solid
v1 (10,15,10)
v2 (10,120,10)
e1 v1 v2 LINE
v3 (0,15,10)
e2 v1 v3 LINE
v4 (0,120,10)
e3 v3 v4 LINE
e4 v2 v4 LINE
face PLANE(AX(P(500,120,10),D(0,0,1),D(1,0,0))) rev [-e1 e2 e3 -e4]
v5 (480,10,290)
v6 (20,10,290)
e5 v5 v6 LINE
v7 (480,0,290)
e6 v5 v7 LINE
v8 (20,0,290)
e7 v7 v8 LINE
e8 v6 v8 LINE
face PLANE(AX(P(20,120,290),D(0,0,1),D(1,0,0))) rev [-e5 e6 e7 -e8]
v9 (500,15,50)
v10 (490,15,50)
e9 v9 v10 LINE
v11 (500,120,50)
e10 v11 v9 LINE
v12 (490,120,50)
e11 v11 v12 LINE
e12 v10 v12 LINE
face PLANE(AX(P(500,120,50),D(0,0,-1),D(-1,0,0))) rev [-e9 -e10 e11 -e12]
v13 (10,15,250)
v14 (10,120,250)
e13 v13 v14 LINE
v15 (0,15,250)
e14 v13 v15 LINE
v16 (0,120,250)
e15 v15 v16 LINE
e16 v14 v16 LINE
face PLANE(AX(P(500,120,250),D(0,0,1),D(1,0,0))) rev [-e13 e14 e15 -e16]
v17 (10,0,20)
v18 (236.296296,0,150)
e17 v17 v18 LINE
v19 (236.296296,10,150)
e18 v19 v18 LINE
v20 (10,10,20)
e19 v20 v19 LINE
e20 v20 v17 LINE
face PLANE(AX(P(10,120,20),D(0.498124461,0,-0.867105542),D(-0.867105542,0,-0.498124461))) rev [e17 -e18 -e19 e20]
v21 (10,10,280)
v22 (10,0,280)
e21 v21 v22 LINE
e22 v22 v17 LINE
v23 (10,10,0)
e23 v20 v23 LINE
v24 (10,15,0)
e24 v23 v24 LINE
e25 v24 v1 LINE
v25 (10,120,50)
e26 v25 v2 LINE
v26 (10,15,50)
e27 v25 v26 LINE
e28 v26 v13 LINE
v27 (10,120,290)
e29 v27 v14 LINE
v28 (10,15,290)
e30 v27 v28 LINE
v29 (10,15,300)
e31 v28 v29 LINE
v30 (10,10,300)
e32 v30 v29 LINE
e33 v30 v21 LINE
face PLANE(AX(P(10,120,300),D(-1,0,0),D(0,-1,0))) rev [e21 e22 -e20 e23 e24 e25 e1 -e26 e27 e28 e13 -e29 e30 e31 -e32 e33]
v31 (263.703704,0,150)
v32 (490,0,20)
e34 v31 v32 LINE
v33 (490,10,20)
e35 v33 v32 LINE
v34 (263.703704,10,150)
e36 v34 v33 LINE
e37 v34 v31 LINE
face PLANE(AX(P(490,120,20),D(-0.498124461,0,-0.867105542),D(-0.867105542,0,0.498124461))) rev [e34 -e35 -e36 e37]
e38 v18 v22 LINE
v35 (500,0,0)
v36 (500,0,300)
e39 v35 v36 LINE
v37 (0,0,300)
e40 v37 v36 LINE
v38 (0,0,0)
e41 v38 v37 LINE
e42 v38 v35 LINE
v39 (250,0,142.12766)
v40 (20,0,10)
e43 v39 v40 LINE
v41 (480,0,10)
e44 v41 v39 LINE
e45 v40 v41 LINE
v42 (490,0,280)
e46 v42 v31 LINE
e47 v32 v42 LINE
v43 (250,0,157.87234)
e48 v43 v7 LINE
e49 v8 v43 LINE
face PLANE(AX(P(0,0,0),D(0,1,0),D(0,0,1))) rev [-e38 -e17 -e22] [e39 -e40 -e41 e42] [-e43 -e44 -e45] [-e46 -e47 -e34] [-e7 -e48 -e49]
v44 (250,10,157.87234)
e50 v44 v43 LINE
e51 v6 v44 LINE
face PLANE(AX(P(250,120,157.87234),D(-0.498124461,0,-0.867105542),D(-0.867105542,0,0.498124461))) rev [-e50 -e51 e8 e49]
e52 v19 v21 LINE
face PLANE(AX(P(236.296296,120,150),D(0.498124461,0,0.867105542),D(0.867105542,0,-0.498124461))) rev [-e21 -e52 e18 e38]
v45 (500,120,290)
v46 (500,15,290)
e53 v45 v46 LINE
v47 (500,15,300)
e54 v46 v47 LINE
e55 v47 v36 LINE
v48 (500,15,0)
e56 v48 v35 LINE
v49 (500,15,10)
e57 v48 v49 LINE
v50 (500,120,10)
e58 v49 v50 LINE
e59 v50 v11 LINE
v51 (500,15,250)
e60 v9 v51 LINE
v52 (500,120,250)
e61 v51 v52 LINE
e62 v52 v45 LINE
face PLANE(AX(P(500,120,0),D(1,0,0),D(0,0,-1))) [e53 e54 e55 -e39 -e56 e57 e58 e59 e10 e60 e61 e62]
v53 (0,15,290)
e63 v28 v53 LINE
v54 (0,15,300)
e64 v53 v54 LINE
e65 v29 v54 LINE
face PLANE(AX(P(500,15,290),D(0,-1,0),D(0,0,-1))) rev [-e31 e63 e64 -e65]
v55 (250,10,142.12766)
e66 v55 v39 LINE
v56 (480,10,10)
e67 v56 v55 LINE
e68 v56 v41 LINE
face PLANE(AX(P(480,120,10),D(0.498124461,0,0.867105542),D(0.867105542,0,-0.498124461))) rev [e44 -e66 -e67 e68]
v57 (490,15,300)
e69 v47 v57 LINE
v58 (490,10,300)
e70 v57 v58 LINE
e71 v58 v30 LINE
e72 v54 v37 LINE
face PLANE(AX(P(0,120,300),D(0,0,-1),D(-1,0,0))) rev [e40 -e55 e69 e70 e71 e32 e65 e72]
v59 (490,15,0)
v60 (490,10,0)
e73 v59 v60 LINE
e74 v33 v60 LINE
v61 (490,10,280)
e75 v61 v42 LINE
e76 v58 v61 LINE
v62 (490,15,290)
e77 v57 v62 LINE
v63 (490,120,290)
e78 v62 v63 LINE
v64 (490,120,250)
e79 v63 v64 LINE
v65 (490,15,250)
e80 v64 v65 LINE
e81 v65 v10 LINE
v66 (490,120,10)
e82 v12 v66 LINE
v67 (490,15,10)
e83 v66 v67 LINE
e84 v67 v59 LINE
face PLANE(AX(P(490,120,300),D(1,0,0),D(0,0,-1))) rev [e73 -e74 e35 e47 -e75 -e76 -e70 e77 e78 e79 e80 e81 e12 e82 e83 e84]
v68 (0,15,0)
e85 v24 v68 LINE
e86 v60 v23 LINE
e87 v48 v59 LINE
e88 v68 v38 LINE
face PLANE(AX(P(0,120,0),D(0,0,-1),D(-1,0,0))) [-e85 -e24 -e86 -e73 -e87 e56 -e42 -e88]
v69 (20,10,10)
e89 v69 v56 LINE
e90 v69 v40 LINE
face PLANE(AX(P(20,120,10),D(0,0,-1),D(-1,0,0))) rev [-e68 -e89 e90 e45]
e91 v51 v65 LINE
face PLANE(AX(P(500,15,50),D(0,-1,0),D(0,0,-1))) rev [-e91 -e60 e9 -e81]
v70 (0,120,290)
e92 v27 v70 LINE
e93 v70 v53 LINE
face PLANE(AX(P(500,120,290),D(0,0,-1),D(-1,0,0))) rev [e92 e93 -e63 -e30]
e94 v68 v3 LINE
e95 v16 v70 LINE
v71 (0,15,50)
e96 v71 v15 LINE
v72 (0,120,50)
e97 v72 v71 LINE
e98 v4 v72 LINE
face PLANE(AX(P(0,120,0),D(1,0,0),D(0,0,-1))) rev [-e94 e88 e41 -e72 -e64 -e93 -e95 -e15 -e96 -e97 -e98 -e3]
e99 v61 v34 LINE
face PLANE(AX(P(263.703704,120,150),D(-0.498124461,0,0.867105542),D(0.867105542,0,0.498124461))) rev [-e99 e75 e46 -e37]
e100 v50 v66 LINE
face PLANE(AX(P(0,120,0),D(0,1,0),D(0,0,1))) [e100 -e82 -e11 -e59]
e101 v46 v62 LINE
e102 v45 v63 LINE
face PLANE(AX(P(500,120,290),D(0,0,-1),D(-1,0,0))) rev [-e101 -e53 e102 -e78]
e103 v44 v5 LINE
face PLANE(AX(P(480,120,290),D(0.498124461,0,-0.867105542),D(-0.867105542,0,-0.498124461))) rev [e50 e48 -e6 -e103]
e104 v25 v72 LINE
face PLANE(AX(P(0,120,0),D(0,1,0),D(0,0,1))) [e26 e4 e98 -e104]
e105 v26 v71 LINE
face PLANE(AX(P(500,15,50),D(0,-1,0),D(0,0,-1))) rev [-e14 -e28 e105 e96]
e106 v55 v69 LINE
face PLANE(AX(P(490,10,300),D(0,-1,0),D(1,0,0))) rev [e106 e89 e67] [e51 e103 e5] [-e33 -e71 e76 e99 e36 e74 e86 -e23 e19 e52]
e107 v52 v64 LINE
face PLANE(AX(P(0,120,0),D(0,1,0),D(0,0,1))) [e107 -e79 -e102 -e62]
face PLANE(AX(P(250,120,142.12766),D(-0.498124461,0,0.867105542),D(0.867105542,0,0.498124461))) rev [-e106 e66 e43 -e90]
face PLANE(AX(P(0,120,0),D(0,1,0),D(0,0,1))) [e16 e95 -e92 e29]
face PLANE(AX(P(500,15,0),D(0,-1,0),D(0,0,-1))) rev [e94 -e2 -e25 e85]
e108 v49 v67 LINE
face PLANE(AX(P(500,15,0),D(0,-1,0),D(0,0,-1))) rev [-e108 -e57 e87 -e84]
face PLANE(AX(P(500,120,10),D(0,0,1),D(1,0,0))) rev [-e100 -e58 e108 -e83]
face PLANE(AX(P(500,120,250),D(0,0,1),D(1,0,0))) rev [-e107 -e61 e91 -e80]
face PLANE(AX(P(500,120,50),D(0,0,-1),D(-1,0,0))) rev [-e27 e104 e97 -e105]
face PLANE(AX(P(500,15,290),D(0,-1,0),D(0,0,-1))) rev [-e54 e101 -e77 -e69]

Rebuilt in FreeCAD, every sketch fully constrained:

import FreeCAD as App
import Part
import Sketcher

V = App.Vector


def add_polygon(sketch, points):
    """Adds a closed chain of lines whose ends are joined by coincident constraints."""
    first, n = sketch.GeometryCount, len(points)
    for a, b in zip(points, points[1:] + points[:1]):
        sketch.addGeometry(Part.LineSegment(App.Vector(*a, 0), App.Vector(*b, 0)), False)
    for i in range(n):
        sketch.addConstraint(Sketcher.Constraint("Coincident", first + i, 2, first + (i + 1) % n, 1))

doc = App.newDocument("Part")
body = doc.addObject("PartDesign::Body", "Body")

# Sketch on XZ plane
sketch1 = body.newObject("Sketcher::SketchObject", "Sketch")
sketch1.AttachmentSupport = (doc.getObject("XZ_Plane"), [""])
sketch1.MapMode = "FlatFace"
add_polygon(sketch1, [(0, 0), (0, 300), (500, 300), (500, 0)])  # lines 0-3
sketch1.addConstraint([
    Sketcher.Constraint("Vertical", 0),
    Sketcher.Constraint("Horizontal", 1),
    Sketcher.Constraint("Vertical", 2),
    Sketcher.Constraint("Horizontal", 3),
    Sketcher.Constraint("Coincident", 3, 2, -1, 1),
    Sketcher.Constraint("DistanceX", 1, 1, 1, 2, 500.0),
    Sketcher.Constraint("DistanceY", 0, 1, 0, 2, 300.0),
])
pad1 = body.newObject("PartDesign::Pad", "Pad")
pad1.Profile = sketch1
pad1.Length = 120
pad1.Reversed = True

# Sketch on XY plane
sketch2 = body.newObject("Sketcher::SketchObject", "Sketch001")
sketch2.AttachmentSupport = (doc.getObject("XY_Plane"), [""])
sketch2.MapMode = "FlatFace"
add_polygon(sketch2, [(490, 120), (490, 10), (10, 10), (10, 120)])  # lines 0-3
sketch2.addConstraint([
    Sketcher.Constraint("Vertical", 0),
    Sketcher.Constraint("Horizontal", 1),
    Sketcher.Constraint("Vertical", 2),
    Sketcher.Constraint("Horizontal", 3),
    Sketcher.Constraint("DistanceX", 1, 2, 1, 1, 480.0),
    Sketcher.Constraint("DistanceY", 0, 2, 0, 1, 110.0),
    Sketcher.Constraint("DistanceX", -1, 1, 0, 2, 490.0),
    Sketcher.Constraint("DistanceY", -1, 1, 0, 2, 10.0),
])
pocket1 = body.newObject("PartDesign::Pocket", "Pocket")
pocket1.Profile = sketch2
pocket1.Type = "ThroughAll"
pocket1.Reversed = True

# Sketch on XZ plane
sketch3 = body.newObject("Sketcher::SketchObject", "Sketch002")
sketch3.AttachmentSupport = (doc.getObject("XZ_Plane"), [""])
sketch3.MapMode = "FlatFace"
add_polygon(sketch3, [(10, 280), (10, 20), (236, 150)])  # lines 0-2
add_polygon(sketch3, [(480, 290), (20, 290), (250, 158)])  # lines 3-5
add_polygon(sketch3, [(490, 280), (264, 150), (490, 20)])  # lines 6-8
add_polygon(sketch3, [(250, 142), (20, 10), (480, 10)])  # lines 9-11
sketch3.addConstraint([
    Sketcher.Constraint("Vertical", 0),
    Sketcher.Constraint("Horizontal", 3),
    Sketcher.Constraint("Vertical", 8),
    Sketcher.Constraint("Horizontal", 10),
    Sketcher.Constraint("Parallel", 2, 4),
    Sketcher.Constraint("Parallel", 1, 5),
    Sketcher.Constraint("Parallel", 5, 6),
    Sketcher.Constraint("Parallel", 4, 7),
    Sketcher.Constraint("Parallel", 6, 9),
    Sketcher.Constraint("Parallel", 7, 11),
    Sketcher.Constraint("Horizontal", 1, 2, 6, 2),
    Sketcher.Constraint("Horizontal", 0, 2, 7, 2),
    Sketcher.Constraint("Horizontal", 2, 2, 8, 2),
    Sketcher.Constraint("Vertical", 3, 2, 9, 2),
    Sketcher.Constraint("Vertical", 5, 2, 10, 2),
    Sketcher.Constraint("DistanceX", 3, 2, 3, 1, 460.0),
    Sketcher.Constraint("DistanceY", 0, 2, 0, 1, 260.0),
    Sketcher.Constraint("DistanceX", -1, 1, 0, 2, 10.0),
    Sketcher.Constraint("DistanceY", -1, 1, 0, 2, 20.0),
    Sketcher.Constraint("DistanceX", -1, 1, 3, 2, 20.0),
    Sketcher.Constraint("DistanceY", -1, 1, 3, 2, 290.0),
    Sketcher.Constraint("DistanceX", -1, 1, 7, 2, 490.0),
    Sketcher.Constraint("DistanceY", -1, 1, 9, 2, 10.0),
    Sketcher.Constraint("DistanceY", -1, 1, 4, 2, 157.87234),
])
pocket2 = body.newObject("PartDesign::Pocket", "Pocket001")
pocket2.Profile = sketch3
pocket2.Type = "ThroughAll"

# Sketch on YZ plane
sketch4 = body.newObject("Sketcher::SketchObject", "Sketch003")
sketch4.AttachmentSupport = (doc.getObject("YZ_Plane"), [""])
sketch4.MapMode = "FlatFace"
add_polygon(sketch4, [(120, 50), (15, 50), (15, 250), (120, 250)])  # lines 0-3
add_polygon(sketch4, [(120, 0), (15, 0), (15, 10), (120, 10)])  # lines 4-7
add_polygon(sketch4, [(120, 290), (15, 290), (15, 300), (120, 300)])  # lines 8-11
sketch4.addConstraint([
    Sketcher.Constraint("Horizontal", 0),
    Sketcher.Constraint("Vertical", 1),
    Sketcher.Constraint("Horizontal", 2),
    Sketcher.Constraint("Vertical", 3),
    Sketcher.Constraint("Horizontal", 4),
    Sketcher.Constraint("Vertical", 5),
    Sketcher.Constraint("Horizontal", 6),
    Sketcher.Constraint("Vertical", 7),
    Sketcher.Constraint("Horizontal", 8),
    Sketcher.Constraint("Vertical", 9),
    Sketcher.Constraint("Horizontal", 10),
    Sketcher.Constraint("Vertical", 11),
    Sketcher.Constraint("PointOnObject", 4, 2, -1),
    Sketcher.Constraint("Vertical", 1, 2, 4, 2),
    Sketcher.Constraint("Vertical", 3, 2, 6, 2),
    Sketcher.Constraint("Vertical", 5, 2, 8, 2),
    Sketcher.Constraint("Vertical", 7, 2, 10, 2),
    Sketcher.Constraint("Equal", 7, 9),
    Sketcher.Constraint("DistanceX", 0, 2, 0, 1, 105.0),
    Sketcher.Constraint("DistanceY", 1, 1, 1, 2, 200.0),
    Sketcher.Constraint("DistanceY", 5, 1, 5, 2, 10.0),
    Sketcher.Constraint("DistanceX", -1, 1, 0, 2, 15.0),
    Sketcher.Constraint("DistanceY", -1, 1, 0, 2, 50.0),
    Sketcher.Constraint("DistanceY", -1, 1, 8, 2, 290.0),
])
pocket3 = body.newObject("PartDesign::Pocket", "Pocket002")
pocket3.Profile = sketch4
pocket3.Type = "ThroughAll"
pocket3.Reversed = True

doc.recompute()
